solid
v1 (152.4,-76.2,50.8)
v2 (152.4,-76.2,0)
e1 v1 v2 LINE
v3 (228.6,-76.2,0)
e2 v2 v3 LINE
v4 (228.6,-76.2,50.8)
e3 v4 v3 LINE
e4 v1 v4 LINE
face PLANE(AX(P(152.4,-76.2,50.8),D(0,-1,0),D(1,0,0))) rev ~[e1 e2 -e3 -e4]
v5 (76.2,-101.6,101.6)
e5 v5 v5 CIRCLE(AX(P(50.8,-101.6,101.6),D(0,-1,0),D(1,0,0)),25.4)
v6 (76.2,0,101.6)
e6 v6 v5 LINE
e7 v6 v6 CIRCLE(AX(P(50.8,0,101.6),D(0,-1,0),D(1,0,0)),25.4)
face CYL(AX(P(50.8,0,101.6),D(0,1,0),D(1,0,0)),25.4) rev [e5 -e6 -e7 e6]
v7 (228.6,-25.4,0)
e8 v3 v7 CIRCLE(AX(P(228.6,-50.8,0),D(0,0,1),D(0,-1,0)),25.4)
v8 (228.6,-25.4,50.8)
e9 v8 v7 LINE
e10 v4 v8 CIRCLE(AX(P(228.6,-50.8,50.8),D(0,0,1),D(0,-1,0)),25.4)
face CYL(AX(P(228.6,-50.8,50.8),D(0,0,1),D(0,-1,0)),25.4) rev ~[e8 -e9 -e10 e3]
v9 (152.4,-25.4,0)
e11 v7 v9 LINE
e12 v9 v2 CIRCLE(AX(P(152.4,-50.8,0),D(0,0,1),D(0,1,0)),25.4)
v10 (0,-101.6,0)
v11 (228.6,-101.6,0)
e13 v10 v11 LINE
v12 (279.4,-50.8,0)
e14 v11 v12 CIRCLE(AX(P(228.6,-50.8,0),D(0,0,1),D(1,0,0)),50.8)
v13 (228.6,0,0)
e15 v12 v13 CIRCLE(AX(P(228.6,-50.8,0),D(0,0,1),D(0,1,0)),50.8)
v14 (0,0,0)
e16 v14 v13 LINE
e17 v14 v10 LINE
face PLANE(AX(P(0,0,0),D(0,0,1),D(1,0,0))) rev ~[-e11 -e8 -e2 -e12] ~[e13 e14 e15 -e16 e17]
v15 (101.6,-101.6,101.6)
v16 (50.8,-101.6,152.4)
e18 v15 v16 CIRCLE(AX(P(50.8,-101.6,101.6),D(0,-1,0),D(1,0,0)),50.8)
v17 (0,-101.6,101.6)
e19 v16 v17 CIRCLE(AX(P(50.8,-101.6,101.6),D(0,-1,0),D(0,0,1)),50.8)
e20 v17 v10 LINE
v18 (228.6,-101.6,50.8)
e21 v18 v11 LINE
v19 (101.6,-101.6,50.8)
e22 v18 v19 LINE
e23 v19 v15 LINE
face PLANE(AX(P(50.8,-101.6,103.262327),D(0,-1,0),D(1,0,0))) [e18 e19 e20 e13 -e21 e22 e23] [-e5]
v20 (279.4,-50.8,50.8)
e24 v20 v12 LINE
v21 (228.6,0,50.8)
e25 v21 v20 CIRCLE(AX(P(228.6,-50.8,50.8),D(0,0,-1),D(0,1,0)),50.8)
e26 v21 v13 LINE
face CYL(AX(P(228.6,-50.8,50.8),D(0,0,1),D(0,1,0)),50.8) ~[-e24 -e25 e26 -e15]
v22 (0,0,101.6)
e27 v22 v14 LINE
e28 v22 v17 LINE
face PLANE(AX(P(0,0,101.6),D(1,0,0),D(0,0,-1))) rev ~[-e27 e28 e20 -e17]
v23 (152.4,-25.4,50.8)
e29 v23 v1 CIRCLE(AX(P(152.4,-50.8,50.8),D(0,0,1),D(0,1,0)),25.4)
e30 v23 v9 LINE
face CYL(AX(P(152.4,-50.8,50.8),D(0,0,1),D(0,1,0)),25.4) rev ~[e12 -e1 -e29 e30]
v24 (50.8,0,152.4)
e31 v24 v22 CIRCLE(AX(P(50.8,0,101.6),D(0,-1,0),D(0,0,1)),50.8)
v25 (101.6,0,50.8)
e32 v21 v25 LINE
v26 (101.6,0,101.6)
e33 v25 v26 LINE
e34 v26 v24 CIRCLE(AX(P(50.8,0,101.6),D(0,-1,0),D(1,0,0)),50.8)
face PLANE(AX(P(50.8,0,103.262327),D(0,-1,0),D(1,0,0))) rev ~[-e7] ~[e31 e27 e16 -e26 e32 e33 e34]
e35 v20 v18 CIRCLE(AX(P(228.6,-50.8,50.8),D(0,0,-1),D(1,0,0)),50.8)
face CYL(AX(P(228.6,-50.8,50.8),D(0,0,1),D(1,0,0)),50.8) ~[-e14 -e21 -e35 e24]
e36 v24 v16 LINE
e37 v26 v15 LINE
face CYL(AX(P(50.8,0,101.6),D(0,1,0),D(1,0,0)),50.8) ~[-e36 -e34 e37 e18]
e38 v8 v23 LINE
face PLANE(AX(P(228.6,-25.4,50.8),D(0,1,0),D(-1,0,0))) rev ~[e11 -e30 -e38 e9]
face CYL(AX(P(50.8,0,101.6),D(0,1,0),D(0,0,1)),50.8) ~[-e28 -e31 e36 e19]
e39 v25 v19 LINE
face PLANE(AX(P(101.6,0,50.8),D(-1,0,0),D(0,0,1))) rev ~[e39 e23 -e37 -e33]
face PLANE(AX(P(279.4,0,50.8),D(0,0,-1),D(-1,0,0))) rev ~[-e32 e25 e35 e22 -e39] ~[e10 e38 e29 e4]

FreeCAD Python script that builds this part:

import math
import FreeCAD as App
import Part
import Sketcher
Q = App.Units.Quantity

doc = App.newDocument("Part")
params = doc.addObject("Spreadsheet::Sheet", "Params")
for row, (alias, value) in enumerate([
    ("sketch1_diameter", "2 in"),
    ("sketch1_radius", "2 in"),
    ("sketch1_width", "11 in"),
    ("sketch1_height", "4 in"),
    ("pad1_length", "4 in"),
    ("sketch2_radius", "1 in"),
    ("sketch2_radius2", "2 in"),
    ("sketch2_width", "3 in"),
], start=1):
    params.set(f"A{row}", alias)
    params.set(f"B{row}", "=" + value)
    params.setAlias(f"B{row}", alias)

body = doc.addObject("PartDesign::Body", "Body")

# Sketch on XZ plane
sketch1 = doc.addObject("Sketcher::SketchObject", "Sketch")
body.addObject(sketch1)
sketch1.AttachmentSupport = (doc.XZ_Plane, [""])
sketch1.MapMode = "FlatFace"
sketch1.addGeometry(Part.ArcOfCircle(Part.Circle(App.Vector(50.8, 101.6, 0), App.Vector(0, 0, 1), 50.8), math.radians(90), math.radians(180)), False)
sketch1.addGeometry(Part.LineSegment(App.Vector(0, 101.6, 0), App.Vector(0, 0, 0)), False)
sketch1.addGeometry(Part.LineSegment(App.Vector(0, 0, 0), App.Vector(279.4, 0, 0)), False)
sketch1.addGeometry(Part.LineSegment(App.Vector(279.4, 0, 0), App.Vector(279.4, 50.8, 0)), False)
sketch1.addGeometry(Part.LineSegment(App.Vector(279.4, 50.8, 0), App.Vector(101.6, 50.8, 0)), False)
sketch1.addGeometry(Part.LineSegment(App.Vector(101.6, 50.8, 0), App.Vector(101.6, 101.6, 0)), False)
sketch1.addGeometry(Part.ArcOfCircle(Part.Circle(App.Vector(50.8, 101.6, 0), App.Vector(0, 0, 1), 50.8), math.radians(0), math.radians(90)), False)
sketch1.addGeometry(Part.Circle(App.Vector(50.8, 101.6, 0), App.Vector(0, 0, 1), 25.4), False)
sketch1.addConstraint(Sketcher.Constraint("Tangent", 0, 2, 1, 1))
sketch1.addConstraint(Sketcher.Constraint("Coincident", 1, 2, 2, 1))
sketch1.addConstraint(Sketcher.Constraint("Coincident", 2, 2, 3, 1))
sketch1.addConstraint(Sketcher.Constraint("Coincident", 3, 2, 4, 1))
sketch1.addConstraint(Sketcher.Constraint("Coincident", 4, 2, 5, 1))
sketch1.addConstraint(Sketcher.Constraint("Tangent", 5, 2, 6, 1))
sketch1.addConstraint(Sketcher.Constraint("Tangent", 6, 2, 0, 1))
sketch1.addConstraint(Sketcher.Constraint("Vertical", 1))
sketch1.addConstraint(Sketcher.Constraint("Horizontal", 2))
sketch1.addConstraint(Sketcher.Constraint("Vertical", 3))
sketch1.addConstraint(Sketcher.Constraint("Horizontal", 4))
sketch1.addConstraint(Sketcher.Constraint("Vertical", 5))
sketch1.addConstraint(Sketcher.Constraint("Coincident", 1, 2, -1, 1))
sketch1.addConstraint(Sketcher.Constraint("Coincident", 7, 3, 0, 3))
sketch1.addConstraint(Sketcher.Constraint("Equal", 0, 6))
sketch1.addConstraint(Sketcher.Constraint("Vertical", 7, 3, 6, 2))
sketch1.addConstraint(Sketcher.Constraint("Equal", 3, 5))
sketch1.addConstraint(Sketcher.Constraint("Diameter", 7, Q("2 in")))
sketch1.addConstraint(Sketcher.Constraint("Radius", 0, Q("2 in")))
sketch1.addConstraint(Sketcher.Constraint("DistanceX", 2, 1, 2, 2, Q("11 in")))
sketch1.addConstraint(Sketcher.Constraint("DistanceY", 1, 2, 1, 1, Q("4 in")))
sketch1.setExpression("Constraints[17]", "Params.sketch1_diameter")
sketch1.setExpression("Constraints[18]", "Params.sketch1_radius")
sketch1.setExpression("Constraints[19]", "Params.sketch1_width")
sketch1.setExpression("Constraints[20]", "Params.sketch1_height")
pad1 = doc.addObject("PartDesign::Pad", "Pad")
body.addObject(pad1)
pad1.Profile = sketch1
pad1.setExpression("Length", "Params.pad1_length")

# Sketch on XY plane
sketch2 = doc.addObject("Sketcher::SketchObject", "Sketch001")
body.addObject(sketch2)
sketch2.AttachmentSupport = (doc.XY_Plane, [""])
sketch2.MapMode = "FlatFace"
sketch2.AttachmentOffset = App.Placement(App.Vector(0, 0, 2 * 25.4), App.Rotation())
sketch2.addGeometry(Part.LineSegment(App.Vector(228.6, -25.4, 0), App.Vector(152.4, -25.4, 0)), False)
sketch2.addGeometry(Part.ArcOfCircle(Part.Circle(App.Vector(152.4, -50.8, 0), App.Vector(0, 0, 1), 25.4), math.radians(90), math.radians(270)), False)
sketch2.addGeometry(Part.LineSegment(App.Vector(152.4, -76.2, 0), App.Vector(228.6, -76.2, 0)), False)
sketch2.addGeometry(Part.ArcOfCircle(Part.Circle(App.Vector(228.6, -50.8, 0), App.Vector(0, 0, 1), 25.4), math.radians(-90), math.radians(90)), False)
sketch2.addGeometry(Part.ArcOfCircle(Part.Circle(App.Vector(228.6, -50.8, 0), App.Vector(0, 0, 1), 50.8), math.radians(0), math.radians(90)), False)
sketch2.addGeometry(Part.LineSegment(App.Vector(279.4, -50.8, 0), App.Vector(279.4, 0, 0)), False)
sketch2.addGeometry(Part.LineSegment(App.Vector(279.4, 0, 0), App.Vector(228.6, 0, 0)), False)
sketch2.addGeometry(Part.LineSegment(App.Vector(279.4, -101.6, 0), App.Vector(279.4, -50.8, 0)), False)
sketch2.addGeometry(Part.ArcOfCircle(Part.Circle(App.Vector(228.6, -50.8, 0), App.Vector(0, 0, 1), 50.8), math.radians(-90), math.radians(0)), False)
sketch2.addGeometry(Part.LineSegment(App.Vector(228.6, -101.6, 0), App.Vector(279.4, -101.6, 0)), False)
sketch2.addConstraint(Sketcher.Constraint("Tangent", 0, 2, 1, 1))
sketch2.addConstraint(Sketcher.Constraint("Tangent", 1, 2, 2, 1))
sketch2.addConstraint(Sketcher.Constraint("Tangent", 2, 2, 3, 1))
sketch2.addConstraint(Sketcher.Constraint("Tangent", 3, 2, 0, 1))
sketch2.addConstraint(Sketcher.Constraint("Tangent", 4, 1, 5, 1))
sketch2.addConstraint(Sketcher.Constraint("Coincident", 5, 2, 6, 1))
sketch2.addConstraint(Sketcher.Constraint("Tangent", 6, 2, 4, 2))
sketch2.addConstraint(Sketcher.Constraint("Tangent", 7, 2, 8, 2))
sketch2.addConstraint(Sketcher.Constraint("Tangent", 8, 1, 9, 1))
sketch2.addConstraint(Sketcher.Constraint("Coincident", 9, 2, 7, 1))
sketch2.addConstraint(Sketcher.Constraint("Horizontal", 0))
sketch2.addConstraint(Sketcher.Constraint("Horizontal", 2))
sketch2.addConstraint(Sketcher.Constraint("Vertical", 5))
sketch2.addConstraint(Sketcher.Constraint("Horizontal", 6))
sketch2.addConstraint(Sketcher.Constraint("Vertical", 7))
sketch2.addConstraint(Sketcher.Constraint("Horizontal", 9))
sketch2.addConstraint(Sketcher.Constraint("Coincident", 4, 3, 3, 3))
sketch2.addConstraint(Sketcher.Constraint("Coincident", 8, 3, 3, 3))
sketch2.addConstraint(Sketcher.Constraint("Equal", 4, 8))
sketch2.addConstraint(Sketcher.Constraint("PointOnObject", 5, 2, -1))
sketch2.addConstraint(Sketcher.Constraint("Radius", 1, Q("1 in")))
sketch2.addConstraint(Sketcher.Constraint("Radius", 4, Q("2 in")))
sketch2.addConstraint(Sketcher.Constraint("DistanceX", 0, 2, 0, 1, Q("3 in")))
sketch2.addConstraint(Sketcher.Constraint("DistanceX", -1, 1, 1, 3, Q("6 in")))
sketch2.setExpression("Constraints[20]", "Params.sketch2_radius")
sketch2.setExpression("Constraints[21]", "Params.sketch2_radius2")
sketch2.setExpression("Constraints[22]", "Params.sketch2_width")
pocket1 = doc.addObject("PartDesign::Pocket", "Pocket")
body.addObject(pocket1)
pocket1.Profile = sketch2
pocket1.Type = "ThroughAll"

doc.recompute()
